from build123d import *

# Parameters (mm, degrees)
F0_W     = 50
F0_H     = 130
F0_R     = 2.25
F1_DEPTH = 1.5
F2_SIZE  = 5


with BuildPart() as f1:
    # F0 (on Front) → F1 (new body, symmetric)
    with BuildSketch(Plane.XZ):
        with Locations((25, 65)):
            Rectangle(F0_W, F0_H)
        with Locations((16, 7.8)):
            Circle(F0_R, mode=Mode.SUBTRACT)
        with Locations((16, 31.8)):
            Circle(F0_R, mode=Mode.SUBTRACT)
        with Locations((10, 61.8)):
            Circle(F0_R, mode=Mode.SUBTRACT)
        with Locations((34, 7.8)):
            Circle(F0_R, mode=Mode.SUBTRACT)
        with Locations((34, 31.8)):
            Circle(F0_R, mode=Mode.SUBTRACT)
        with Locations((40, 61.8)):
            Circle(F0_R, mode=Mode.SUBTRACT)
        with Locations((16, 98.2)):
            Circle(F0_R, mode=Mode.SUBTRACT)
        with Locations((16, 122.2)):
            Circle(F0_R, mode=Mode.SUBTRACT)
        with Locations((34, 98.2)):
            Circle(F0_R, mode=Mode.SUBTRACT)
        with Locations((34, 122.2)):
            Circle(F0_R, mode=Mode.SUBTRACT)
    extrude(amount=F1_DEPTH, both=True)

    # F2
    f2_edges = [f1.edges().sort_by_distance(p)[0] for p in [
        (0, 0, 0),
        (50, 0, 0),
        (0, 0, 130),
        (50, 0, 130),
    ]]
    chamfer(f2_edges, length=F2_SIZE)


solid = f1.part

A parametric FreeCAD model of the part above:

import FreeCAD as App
import Part
import Sketcher
from FreeCAD import Vector
Q = App.Units.Quantity


def edges_at(feature, points):
    """Names of the edges that pass closest to the given points."""
    edges = feature.Shape.Edges
    near = lambda p: min(range(len(edges)), key=lambda i: edges[i].distToShape(Part.Vertex(*p))[0])
    return sorted({f"Edge{near(p) + 1}" for p in points})

doc = App.newDocument("Part")
params = doc.addObject("Spreadsheet::Sheet", "Params")
for row, (alias, value) in enumerate([
    ("sketch1_diameter", "4.5 mm"),
    ("sketch1_width", "50 mm"),
    ("sketch1_height", "130 mm"),
    ("pad1_length", "3 mm"),
    ("chamfer_size", "5 mm"),
], start=1):
    params.set(f"A{row}", alias)
    params.set(f"B{row}", "=" + value)
    params.setAlias(f"B{row}", alias)

body = doc.addObject("PartDesign::Body", "Body")

# Sketch on XZ plane
sketch1 = doc.addObject("Sketcher::SketchObject", "Sketch")
body.addObject(sketch1)
sketch1.AttachmentSupport = (doc.XZ_Plane, [""])
sketch1.MapMode = "FlatFace"
sketch1.addGeometry([
    Part.LineSegment(Vector(0, 130, 0), Vector(0, 0, 0)),  # 0
    Part.LineSegment(Vector(0, 0, 0), Vector(50, 0, 0)),  # 1
    Part.LineSegment(Vector(50, 0, 0), Vector(50, 130, 0)),  # 2
    Part.LineSegment(Vector(50, 130, 0), Vector(0, 130, 0)),  # 3
    Part.Circle(Vector(16, 7.8, 0), Vector(0, 0, 1), 2.2),  # 4
    Part.Circle(Vector(16, 31.8, 0), Vector(0, 0, 1), 2.2),  # 5
    Part.Circle(Vector(10, 61.8, 0), Vector(0, 0, 1), 2.2),  # 6
    Part.Circle(Vector(34, 7.8, 0), Vector(0, 0, 1), 2.2),  # 7
    Part.Circle(Vector(34, 31.8, 0), Vector(0, 0, 1), 2.2),  # 8
    Part.Circle(Vector(40, 61.8, 0), Vector(0, 0, 1), 2.2),  # 9
    Part.Circle(Vector(16, 98.2, 0), Vector(0, 0, 1), 2.2),  # 10
    Part.Circle(Vector(16, 122.2, 0), Vector(0, 0, 1), 2.2),  # 11
    Part.Circle(Vector(34, 98.2, 0), Vector(0, 0, 1), 2.2),  # 12
    Part.Circle(Vector(34, 122.2, 0), Vector(0, 0, 1), 2.2),  # 13
], False)
sketch1.addConstraint([
    Sketcher.Constraint("Coincident", 0, 2, 1, 1),
    Sketcher.Constraint("Coincident", 1, 2, 2, 1),
    Sketcher.Constraint("Coincident", 2, 2, 3, 1),
    Sketcher.Constraint("Coincident", 3, 2, 0, 1),
    Sketcher.Constraint("Vertical", 0),
    Sketcher.Constraint("Horizontal", 1),
    Sketcher.Constraint("Vertical", 2),
    Sketcher.Constraint("Horizontal", 3),
    Sketcher.Constraint("Coincident", 0, 2, -1, 1),
    Sketcher.Constraint("Equal", 4, 5),
    Sketcher.Constraint("Equal", 5, 6),
    Sketcher.Constraint("Equal", 6, 7),
    Sketcher.Constraint("Equal", 7, 8),
    Sketcher.Constraint("Equal", 8, 9),
    Sketcher.Constraint("Equal", 9, 10),
    Sketcher.Constraint("Equal", 10, 11),
    Sketcher.Constraint("Equal", 11, 12),
    Sketcher.Constraint("Equal", 12, 13),
    Sketcher.Constraint("Horizontal", 4, 3, 7, 3),
    Sketcher.Constraint("Horizontal", 5, 3, 8, 3),
    Sketcher.Constraint("Horizontal", 6, 3, 9, 3),
    Sketcher.Constraint("Horizontal", 10, 3, 12, 3),
    Sketcher.Constraint("Horizontal", 11, 3, 13, 3),
    Sketcher.Constraint("Vertical", 4, 3, 5, 3),
    Sketcher.Constraint("Vertical", 7, 3, 8, 3),
    Sketcher.Constraint("Vertical", 5, 3, 10, 3),
    Sketcher.Constraint("Vertical", 10, 3, 11, 3),
    Sketcher.Constraint("Vertical", 8, 3, 12, 3),
    Sketcher.Constraint("Vertical", 12, 3, 13, 3),
    Sketcher.Constraint("Diameter", 4, Q("4.5 mm")),
    Sketcher.Constraint("DistanceX", 1, 1, 1, 2, Q("50 mm")),
    Sketcher.Constraint("DistanceY", 0, 2, 0, 1, Q("130 mm")),
    Sketcher.Constraint("DistanceX", -1, 1, 4, 3, Q("16 mm")),
    Sketcher.Constraint("DistanceX", -1, 1, 6, 3, Q("10 mm")),
    Sketcher.Constraint("DistanceX", -1, 1, 7, 3, Q("34 mm")),
    Sketcher.Constraint("DistanceX", -1, 1, 9, 3, Q("40 mm")),
    Sketcher.Constraint("DistanceY", 4, 3, 5, 3, Q("24 mm")),
    Sketcher.Constraint("DistanceY", 5, 3, 6, 3, Q("30 mm")),
    Sketcher.Constraint("DistanceY", 10, 3, 11, 3, Q("24 mm")),
    Sketcher.Constraint("DistanceY", -1, 1, 4, 3, Q("7.8 mm")),
    Sketcher.Constraint("DistanceY", -1, 1, 10, 3, Q("98.2 mm")),
])
sketch1.setExpression("Constraints[29]", "Params.sketch1_diameter")
sketch1.setExpression("Constraints[30]", "Params.sketch1_width")
sketch1.setExpression("Constraints[31]", "Params.sketch1_height")
pad1 = doc.addObject("PartDesign::Pad", "Pad")
body.addObject(pad1)
pad1.Profile = sketch1
pad1.setExpression("Length", "Params.pad1_length")
pad1.Midplane = True
doc.recompute()

chamfer = doc.addObject("PartDesign::Chamfer", "Chamfer")
body.addObject(chamfer)
chamfer.Base = (pad1, edges_at(pad1, [
    (0, 0, 0),
    (50, 0, 0),
    (0, 0, 130),
    (50, 0, 130),
]))
chamfer.setExpression("Size", "Params.chamfer_size")

doc.recompute()
